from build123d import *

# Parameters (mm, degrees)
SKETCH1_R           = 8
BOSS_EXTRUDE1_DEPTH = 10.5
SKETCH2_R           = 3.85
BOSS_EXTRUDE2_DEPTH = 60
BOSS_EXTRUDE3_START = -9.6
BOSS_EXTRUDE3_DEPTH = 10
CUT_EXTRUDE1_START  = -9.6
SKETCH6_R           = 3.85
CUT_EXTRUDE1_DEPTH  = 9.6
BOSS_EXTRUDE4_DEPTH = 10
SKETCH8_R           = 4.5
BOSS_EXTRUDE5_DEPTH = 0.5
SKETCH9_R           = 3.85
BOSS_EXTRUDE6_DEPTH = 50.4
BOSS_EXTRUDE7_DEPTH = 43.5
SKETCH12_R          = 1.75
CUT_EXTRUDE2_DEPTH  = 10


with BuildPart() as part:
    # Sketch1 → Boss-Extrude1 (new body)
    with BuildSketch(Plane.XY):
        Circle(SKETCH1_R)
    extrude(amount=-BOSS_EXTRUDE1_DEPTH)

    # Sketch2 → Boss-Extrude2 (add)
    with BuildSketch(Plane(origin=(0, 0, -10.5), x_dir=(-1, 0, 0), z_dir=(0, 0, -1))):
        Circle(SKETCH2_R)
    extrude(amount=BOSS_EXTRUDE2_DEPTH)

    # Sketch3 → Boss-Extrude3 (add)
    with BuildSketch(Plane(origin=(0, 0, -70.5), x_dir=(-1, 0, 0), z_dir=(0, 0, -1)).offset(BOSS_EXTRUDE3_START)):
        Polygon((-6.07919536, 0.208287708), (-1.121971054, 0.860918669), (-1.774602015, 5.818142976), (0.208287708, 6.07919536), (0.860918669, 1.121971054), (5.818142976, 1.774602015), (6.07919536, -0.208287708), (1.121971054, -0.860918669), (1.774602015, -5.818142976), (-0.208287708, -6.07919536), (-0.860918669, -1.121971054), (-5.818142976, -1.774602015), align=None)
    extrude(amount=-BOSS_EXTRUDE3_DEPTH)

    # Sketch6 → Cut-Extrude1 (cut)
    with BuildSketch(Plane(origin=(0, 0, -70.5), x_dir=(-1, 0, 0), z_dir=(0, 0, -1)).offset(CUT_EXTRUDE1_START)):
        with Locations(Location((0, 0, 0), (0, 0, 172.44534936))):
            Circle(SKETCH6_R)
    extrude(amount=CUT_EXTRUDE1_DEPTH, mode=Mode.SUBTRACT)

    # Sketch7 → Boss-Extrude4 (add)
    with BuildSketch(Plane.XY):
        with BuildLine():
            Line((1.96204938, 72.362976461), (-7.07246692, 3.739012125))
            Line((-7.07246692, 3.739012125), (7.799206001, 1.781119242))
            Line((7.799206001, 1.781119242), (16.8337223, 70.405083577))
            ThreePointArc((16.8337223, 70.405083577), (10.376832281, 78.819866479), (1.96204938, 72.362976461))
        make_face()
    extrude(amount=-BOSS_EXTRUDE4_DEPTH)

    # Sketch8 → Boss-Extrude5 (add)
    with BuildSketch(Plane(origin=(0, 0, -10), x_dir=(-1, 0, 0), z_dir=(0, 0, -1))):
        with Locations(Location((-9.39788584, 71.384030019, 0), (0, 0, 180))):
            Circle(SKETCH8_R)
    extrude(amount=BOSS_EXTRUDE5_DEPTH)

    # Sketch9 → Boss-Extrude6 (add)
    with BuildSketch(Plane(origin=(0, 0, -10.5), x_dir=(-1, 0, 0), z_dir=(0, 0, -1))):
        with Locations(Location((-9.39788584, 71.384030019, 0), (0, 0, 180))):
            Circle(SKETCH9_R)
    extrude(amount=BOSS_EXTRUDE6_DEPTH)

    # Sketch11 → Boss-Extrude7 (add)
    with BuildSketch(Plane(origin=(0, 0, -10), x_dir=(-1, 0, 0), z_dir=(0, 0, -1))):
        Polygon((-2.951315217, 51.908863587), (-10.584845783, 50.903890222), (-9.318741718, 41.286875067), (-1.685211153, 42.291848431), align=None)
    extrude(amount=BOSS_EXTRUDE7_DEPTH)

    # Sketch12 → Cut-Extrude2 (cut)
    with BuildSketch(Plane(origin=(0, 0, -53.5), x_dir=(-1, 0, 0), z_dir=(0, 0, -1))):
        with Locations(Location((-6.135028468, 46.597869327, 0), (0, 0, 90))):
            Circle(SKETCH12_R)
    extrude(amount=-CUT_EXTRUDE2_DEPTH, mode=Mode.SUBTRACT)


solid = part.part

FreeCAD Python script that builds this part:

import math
import FreeCAD as App
import Part
import Sketcher
from FreeCAD import Vector
Q = App.Units.Quantity


def add_polygon(sketch, points):
    """Adds a closed chain of lines whose ends are joined by coincident constraints."""
    first, n = sketch.GeometryCount, len(points)
    for a, b in zip(points, points[1:] + points[:1]):
        sketch.addGeometry(Part.LineSegment(App.Vector(*a, 0), App.Vector(*b, 0)), False)
    for i in range(n):
        sketch.addConstraint(Sketcher.Constraint("Coincident", first + i, 2, first + (i + 1) % n, 1))

doc = App.newDocument("Part")
body = doc.addObject("PartDesign::Body", "Body")

# Sketch on XY plane
sketch1 = body.newObject("Sketcher::SketchObject", "Sketch")
sketch1.AttachmentSupport = (doc.getObject("XY_Plane"), [""])
sketch1.MapMode = "FlatFace"
sketch1.addGeometry(Part.Circle(Vector(0, 0, 0), Vector(0, 0, 1), 8), False)
sketch1.addConstraint([
    Sketcher.Constraint("Coincident", 0, 3, -1, 1),
    Sketcher.Constraint("Diameter", 0, 16.0),
])
pad1 = body.newObject("PartDesign::Pad", "Pad")
pad1.Profile = sketch1
pad1.Length = 10.5
pad1.Reversed = True

# Sketch on XY plane
sketch2 = body.newObject("Sketcher::SketchObject", "Sketch001")
sketch2.AttachmentSupport = (doc.getObject("XY_Plane"), [""])
sketch2.MapMode = "FlatFace"
sketch2.AttachmentOffset = App.Placement(Vector(0, 0, -10.5), App.Rotation())
sketch2.addGeometry(Part.Circle(Vector(0, 0, 0), Vector(0, 0, 1), 3.9), False)
sketch2.addConstraint([
    Sketcher.Constraint("Coincident", 0, 3, -1, 1),
    Sketcher.Constraint("Diameter", 0, 7.7),
])
pad2 = body.newObject("PartDesign::Pad", "Pad001")
pad2.Profile = sketch2
pad2.Length = 60
pad2.Reversed = True

# Sketch on XY plane
sketch3 = body.newObject("Sketcher::SketchObject", "Sketch002")
sketch3.AttachmentSupport = (doc.getObject("XY_Plane"), [""])
sketch3.MapMode = "FlatFace"
sketch3.AttachmentOffset = App.Placement(Vector(0, 0, -60.9), App.Rotation())
add_polygon(sketch3, [(1.1, 0.9), (6.1, 0.2), (5.8, -1.8), (0.9, -1.1), (0.2, -6.1), (-1.8, -5.8), (-1.1, -0.9), (-6.1, -0.2), (-5.8, 1.8), (-0.9, 1.1), (-0.2, 6.1), (1.8, 5.8)])  # lines 0-11
sketch3.addConstraint([
    Sketcher.Constraint("Symmetric", 0, 2, 6, 2, -1, 1),
    Sketcher.Constraint("Symmetric", 1, 2, 7, 2, -1, 1),
    Sketcher.Constraint("Symmetric", 2, 2, 8, 2, -1, 1),
    Sketcher.Constraint("Symmetric", 3, 2, 9, 2, -1, 1),
    Sketcher.Constraint("Symmetric", 4, 2, 10, 2, -1, 1),
    Sketcher.Constraint("Symmetric", 5, 2, 11, 2, -1, 1),
    Sketcher.Constraint("Perpendicular", 0, 1),
    Sketcher.Constraint("Perpendicular", 1, 2),
    Sketcher.Constraint("Perpendicular", 2, 3),
    Sketcher.Constraint("Perpendicular", 3, 4),
    Sketcher.Constraint("Perpendicular", 4, 5),
    Sketcher.Constraint("Equal", 0, 2),
    Sketcher.Constraint("Equal", 2, 3),
    Sketcher.Constraint("Equal", 1, 4),
    Sketcher.Constraint("Equal", 3, 5),
    Sketcher.Constraint("Distance", 0, 5.0),
    Sketcher.Constraint("Distance", 1, 2.0),
    Sketcher.Constraint("Angle", 0, Q("-7.5 deg")),
])
pad3 = body.newObject("PartDesign::Pad", "Pad002")
pad3.Profile = sketch3
pad3.Length = 10

# Sketch on XY plane
sketch4 = body.newObject("Sketcher::SketchObject", "Sketch003")
sketch4.AttachmentSupport = (doc.getObject("XY_Plane"), [""])
sketch4.MapMode = "FlatFace"
sketch4.AttachmentOffset = App.Placement(Vector(0, 0, -60.9), App.Rotation())
sketch4.addGeometry(Part.Circle(Vector(0, 0, 0), Vector(0, 0, 1), 3.9), False)
sketch4.addConstraint([
    Sketcher.Constraint("Coincident", 0, 3, -1, 1),
    Sketcher.Constraint("Diameter", 0, 7.7),
])
pocket1 = body.newObject("PartDesign::Pocket", "Pocket")
pocket1.Profile = sketch4
pocket1.Length = 9.6

# Sketch on XY plane
sketch5 = body.newObject("Sketcher::SketchObject", "Sketch004")
sketch5.AttachmentSupport = (doc.getObject("XY_Plane"), [""])
sketch5.MapMode = "FlatFace"
sketch5.addGeometry([
    Part.LineSegment(Vector(2, 72, 0), Vector(-7, 4, 0)),
    Part.LineSegment(Vector(-7, 4, 0), Vector(8, 2, 0)),
    Part.LineSegment(Vector(8, 2, 0), Vector(17, 70, 0)),
    Part.ArcOfCircle(Part.Circle(Vector(9, 71, 0), Vector(0, 0, 1), 8), math.radians(-8), math.radians(172)),
], False)
sketch5.addConstraint([
    Sketcher.Constraint("Coincident", 0, 2, 1, 1),
    Sketcher.Constraint("Coincident", 1, 2, 2, 1),
    Sketcher.Constraint("Tangent", 2, 2, 3, 1),
    Sketcher.Constraint("Tangent", 3, 2, 0, 1),
    Sketcher.Constraint("Perpendicular", 0, 1),
    Sketcher.Constraint("Perpendicular", 1, 2),
    Sketcher.Constraint("Radius", 3, 7.5),
    Sketcher.Constraint("Angle", 0, Q("-97.5 deg")),
    Sketcher.Constraint("DistanceY", -1, 1, 3, 3, 71.38403),
    Sketcher.Constraint("DistanceY", -1, 1, 1, 2, 1.781119),
    Sketcher.Constraint("DistanceX", -1, 1, 3, 2, 1.962049),
])
pad4 = body.newObject("PartDesign::Pad", "Pad003")
pad4.Profile = sketch5
pad4.Length = 10
pad4.Reversed = True

# Sketch on XY plane
sketch6 = body.newObject("Sketcher::SketchObject", "Sketch005")
sketch6.AttachmentSupport = (doc.getObject("XY_Plane"), [""])
sketch6.MapMode = "FlatFace"
sketch6.AttachmentOffset = App.Placement(Vector(0, 0, -10), App.Rotation())
sketch6.addGeometry(Part.Circle(Vector(9.4, 71.4, 0), Vector(0, 0, 1), 4.5), False)
sketch6.addConstraint([
    Sketcher.Constraint("Diameter", 0, 9.0),
    Sketcher.Constraint("DistanceY", -1, 1, 0, 3, 71.38403),
    Sketcher.Constraint("DistanceX", -1, 1, 0, 3, 9.397886),
])
pad5 = body.newObject("PartDesign::Pad", "Pad004")
pad5.Profile = sketch6
pad5.Length = 0.5
pad5.Reversed = True

# Sketch on XY plane
sketch7 = body.newObject("Sketcher::SketchObject", "Sketch006")
sketch7.AttachmentSupport = (doc.getObject("XY_Plane"), [""])
sketch7.MapMode = "FlatFace"
sketch7.AttachmentOffset = App.Placement(Vector(0, 0, -10.5), App.Rotation())
sketch7.addGeometry(Part.Circle(Vector(9.4, 71.4, 0), Vector(0, 0, 1), 3.9), False)
sketch7.addConstraint([
    Sketcher.Constraint("Diameter", 0, 7.7),
    Sketcher.Constraint("DistanceY", -1, 1, 0, 3, 71.38403),
    Sketcher.Constraint("DistanceX", -1, 1, 0, 3, 9.397886),
])
pad6 = body.newObject("PartDesign::Pad", "Pad005")
pad6.Profile = sketch7
pad6.Length = 50.4
pad6.Reversed = True

# Sketch on XY plane
sketch8 = body.newObject("Sketcher::SketchObject", "Sketch007")
sketch8.AttachmentSupport = (doc.getObject("XY_Plane"), [""])
sketch8.MapMode = "FlatFace"
sketch8.AttachmentOffset = App.Placement(Vector(0, 0, -10), App.Rotation())
add_polygon(sketch8, [(3, 52), (11, 51), (9, 41), (2, 42)])  # lines 0-3
sketch8.addConstraint([
    Sketcher.Constraint("Perpendicular", 0, 1),
    Sketcher.Constraint("Perpendicular", 1, 2),
    Sketcher.Constraint("Perpendicular", 2, 3),
    Sketcher.Constraint("Angle", 0, Q("-7.5 deg")),
    Sketcher.Constraint("Distance", 1, 9.7),
    Sketcher.Constraint("Distance", 0, 7.6994),
    Sketcher.Constraint("DistanceY", -1, 1, 0, 2, 50.90389),
    Sketcher.Constraint("DistanceX", -1, 1, 1, 2, 9.318742),
])
pad7 = body.newObject("PartDesign::Pad", "Pad006")
pad7.Profile = sketch8
pad7.Length = 43.5
pad7.Reversed = True

# Sketch on XY plane
sketch9 = body.newObject("Sketcher::SketchObject", "Sketch008")
sketch9.AttachmentSupport = (doc.getObject("XY_Plane"), [""])
sketch9.MapMode = "FlatFace"
sketch9.AttachmentOffset = App.Placement(Vector(0, 0, -53.5), App.Rotation())
sketch9.addGeometry(Part.Circle(Vector(6.1, 46.6, 0), Vector(0, 0, 1), 1.8), False)
sketch9.addConstraint([
    Sketcher.Constraint("Diameter", 0, 3.5),
    Sketcher.Constraint("DistanceX", -1, 1, 0, 3, 6.135028),
    Sketcher.Constraint("DistanceY", -1, 1, 0, 3, 46.597869),
])
pocket2 = body.newObject("PartDesign::Pocket", "Pocket001")
pocket2.Profile = sketch9
pocket2.Length = 10
pocket2.Reversed = True

doc.recompute()
